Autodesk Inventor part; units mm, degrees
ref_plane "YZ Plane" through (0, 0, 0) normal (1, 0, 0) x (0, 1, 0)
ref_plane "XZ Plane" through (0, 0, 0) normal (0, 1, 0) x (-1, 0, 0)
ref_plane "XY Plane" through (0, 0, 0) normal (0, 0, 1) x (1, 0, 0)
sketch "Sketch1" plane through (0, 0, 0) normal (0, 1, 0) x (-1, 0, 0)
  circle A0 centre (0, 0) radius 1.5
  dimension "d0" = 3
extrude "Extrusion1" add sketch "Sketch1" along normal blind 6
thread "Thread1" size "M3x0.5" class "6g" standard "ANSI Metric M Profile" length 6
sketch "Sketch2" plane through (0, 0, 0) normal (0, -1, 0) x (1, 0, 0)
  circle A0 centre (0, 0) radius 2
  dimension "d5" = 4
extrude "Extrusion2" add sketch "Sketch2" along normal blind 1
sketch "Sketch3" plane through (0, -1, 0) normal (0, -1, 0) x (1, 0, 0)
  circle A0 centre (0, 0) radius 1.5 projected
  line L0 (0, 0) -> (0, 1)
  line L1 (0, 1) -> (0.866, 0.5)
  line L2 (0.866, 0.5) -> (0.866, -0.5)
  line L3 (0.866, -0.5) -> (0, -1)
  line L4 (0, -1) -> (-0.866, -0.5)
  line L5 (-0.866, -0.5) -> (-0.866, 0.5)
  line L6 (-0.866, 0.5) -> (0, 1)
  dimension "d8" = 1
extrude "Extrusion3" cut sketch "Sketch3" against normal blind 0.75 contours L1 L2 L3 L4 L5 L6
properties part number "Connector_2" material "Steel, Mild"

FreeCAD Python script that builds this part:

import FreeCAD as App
import Part
import Sketcher

V = App.Vector
Q = App.Units.Quantity


def add_polygon(sketch, points):
    """Adds a closed chain of lines whose ends are joined by coincident constraints."""
    first, n = sketch.GeometryCount, len(points)
    for a, b in zip(points, points[1:] + points[:1]):
        sketch.addGeometry(Part.LineSegment(App.Vector(*a, 0), App.Vector(*b, 0)), False)
    for i in range(n):
        sketch.addConstraint(Sketcher.Constraint("Coincident", first + i, 2, first + (i + 1) % n, 1))

doc = App.newDocument("Part")
body = doc.addObject("PartDesign::Body", "Body")

# Sketch on XZ plane
sketch1 = body.newObject("Sketcher::SketchObject", "Sketch")
sketch1.AttachmentSupport = (doc.getObject("XZ_Plane"), [""])
sketch1.MapMode = "FlatFace"
sketch1.addGeometry(Part.Circle(V(0, 0, 0), V(0, 0, 1), 1.5), False)
sketch1.addConstraint([
    Sketcher.Constraint("Coincident", 0, 3, -1, 1),
    Sketcher.Constraint("Diameter", 0, Q("3 mm")),
])
pad1 = body.newObject("PartDesign::Pad", "Pad")
pad1.Profile = sketch1
pad1.Length = 6
pad1.Reversed = True

# Sketch on XZ plane
sketch2 = body.newObject("Sketcher::SketchObject", "Sketch001")
sketch2.AttachmentSupport = (doc.getObject("XZ_Plane"), [""])
sketch2.MapMode = "FlatFace"
sketch2.addGeometry(Part.Circle(V(0, 0, 0), V(0, 0, 1), 2), False)
sketch2.addConstraint([
    Sketcher.Constraint("Coincident", 0, 3, -1, 1),
    Sketcher.Constraint("Diameter", 0, Q("4 mm")),
])
pad2 = body.newObject("PartDesign::Pad", "Pad001")
pad2.Profile = sketch2
pad2.Length = 1

# Sketch on XZ plane
sketch3 = body.newObject("Sketcher::SketchObject", "Sketch002")
sketch3.AttachmentSupport = (doc.getObject("XZ_Plane"), [""])
sketch3.MapMode = "FlatFace"
sketch3.AttachmentOffset = App.Placement(V(0, 0, 1), App.Rotation())
add_polygon(sketch3, [(0.9, 0.5), (0, 1), (-0.9, 0.5), (-0.9, -0.5), (0, -1), (0.9, -0.5)])  # lines 0-5
sketch3.addConstraint([
    Sketcher.Constraint("Vertical", 2),
    Sketcher.Constraint("Vertical", 5),
    Sketcher.Constraint("Symmetric", 0, 2, 3, 2, -1, 1),
    Sketcher.Constraint("Symmetric", 1, 2, 4, 2, -1, 1),
    Sketcher.Constraint("PointOnObject", 0, 2, -2),
    Sketcher.Constraint("Parallel", 0, 3),
    Sketcher.Constraint("Horizontal", 2, 2, 4, 2),
    Sketcher.Constraint("DistanceY", 2, 2, 2, 1, Q("1 mm")),
    Sketcher.Constraint("Distance", 0, Q("1 mm")),
    Sketcher.Constraint("DistanceY", -1, 1, 0, 2, Q("1 mm")),
])
pocket1 = body.newObject("PartDesign::Pocket", "Pocket")
pocket1.Profile = sketch3
pocket1.Length = 0.75

doc.recompute()
